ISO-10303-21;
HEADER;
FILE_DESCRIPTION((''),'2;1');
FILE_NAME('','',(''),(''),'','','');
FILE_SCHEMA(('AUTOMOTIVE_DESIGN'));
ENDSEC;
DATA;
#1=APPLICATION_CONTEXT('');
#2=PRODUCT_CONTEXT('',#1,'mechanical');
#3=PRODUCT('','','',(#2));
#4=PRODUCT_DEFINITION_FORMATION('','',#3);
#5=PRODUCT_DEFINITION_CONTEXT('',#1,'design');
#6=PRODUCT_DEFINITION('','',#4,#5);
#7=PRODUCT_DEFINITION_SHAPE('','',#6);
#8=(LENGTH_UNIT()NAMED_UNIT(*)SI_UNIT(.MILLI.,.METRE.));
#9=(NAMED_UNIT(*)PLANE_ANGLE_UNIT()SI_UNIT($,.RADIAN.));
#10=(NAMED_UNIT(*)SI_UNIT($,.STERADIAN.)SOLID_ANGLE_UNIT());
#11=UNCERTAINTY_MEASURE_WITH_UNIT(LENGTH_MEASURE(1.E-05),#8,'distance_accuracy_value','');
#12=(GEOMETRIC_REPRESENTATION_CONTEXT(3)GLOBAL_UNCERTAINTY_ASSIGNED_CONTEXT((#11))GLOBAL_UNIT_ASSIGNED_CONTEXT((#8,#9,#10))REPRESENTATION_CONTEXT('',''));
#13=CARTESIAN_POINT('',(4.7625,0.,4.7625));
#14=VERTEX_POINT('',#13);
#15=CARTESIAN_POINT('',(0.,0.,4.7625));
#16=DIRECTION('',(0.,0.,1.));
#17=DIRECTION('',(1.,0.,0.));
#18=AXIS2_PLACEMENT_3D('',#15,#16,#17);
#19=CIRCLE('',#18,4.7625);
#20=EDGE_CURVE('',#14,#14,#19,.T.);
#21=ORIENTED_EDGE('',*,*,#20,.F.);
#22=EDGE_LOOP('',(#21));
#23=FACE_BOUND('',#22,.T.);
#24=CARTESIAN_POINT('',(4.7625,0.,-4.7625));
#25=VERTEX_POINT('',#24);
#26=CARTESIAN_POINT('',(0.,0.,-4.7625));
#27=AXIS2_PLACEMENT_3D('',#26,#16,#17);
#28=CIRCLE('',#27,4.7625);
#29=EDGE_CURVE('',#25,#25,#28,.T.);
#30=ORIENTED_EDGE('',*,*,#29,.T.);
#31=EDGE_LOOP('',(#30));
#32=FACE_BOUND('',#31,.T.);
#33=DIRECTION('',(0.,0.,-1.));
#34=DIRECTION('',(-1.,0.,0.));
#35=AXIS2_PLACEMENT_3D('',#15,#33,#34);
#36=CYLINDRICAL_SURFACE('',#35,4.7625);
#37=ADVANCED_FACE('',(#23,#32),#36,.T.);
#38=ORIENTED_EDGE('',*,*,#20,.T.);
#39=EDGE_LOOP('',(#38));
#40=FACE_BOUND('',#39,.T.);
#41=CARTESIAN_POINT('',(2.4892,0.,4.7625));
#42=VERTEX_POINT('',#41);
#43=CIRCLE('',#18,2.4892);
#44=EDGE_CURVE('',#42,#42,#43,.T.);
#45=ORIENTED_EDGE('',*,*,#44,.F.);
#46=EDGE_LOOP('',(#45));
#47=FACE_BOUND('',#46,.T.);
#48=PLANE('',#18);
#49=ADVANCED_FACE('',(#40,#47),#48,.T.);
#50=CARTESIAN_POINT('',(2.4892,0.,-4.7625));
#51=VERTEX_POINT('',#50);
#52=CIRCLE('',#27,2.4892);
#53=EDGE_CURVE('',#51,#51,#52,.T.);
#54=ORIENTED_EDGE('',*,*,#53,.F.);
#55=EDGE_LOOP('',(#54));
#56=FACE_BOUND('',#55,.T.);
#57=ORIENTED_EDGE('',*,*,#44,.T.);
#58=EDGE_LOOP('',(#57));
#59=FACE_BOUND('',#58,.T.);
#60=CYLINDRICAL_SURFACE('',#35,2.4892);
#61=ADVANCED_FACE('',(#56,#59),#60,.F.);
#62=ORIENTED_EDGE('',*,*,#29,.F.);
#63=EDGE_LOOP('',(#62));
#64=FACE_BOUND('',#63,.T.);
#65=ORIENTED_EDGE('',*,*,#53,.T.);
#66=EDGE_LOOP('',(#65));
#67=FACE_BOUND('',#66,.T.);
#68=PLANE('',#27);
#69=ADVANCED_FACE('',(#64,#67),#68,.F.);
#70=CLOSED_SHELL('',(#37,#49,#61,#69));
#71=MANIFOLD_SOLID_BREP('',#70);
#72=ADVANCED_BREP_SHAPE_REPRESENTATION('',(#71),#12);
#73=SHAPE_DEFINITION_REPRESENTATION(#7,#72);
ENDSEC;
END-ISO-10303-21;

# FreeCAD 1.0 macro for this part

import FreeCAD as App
import Part
import Sketcher
Q = App.Units.Quantity

doc = App.newDocument("Part")
body = doc.addObject("PartDesign::Body", "Body")

# Sketch on XY plane
sketch1 = body.newObject("Sketcher::SketchObject", "Sketch")
sketch1.AttachmentSupport = (doc.getObject("XY_Plane"), [""])
sketch1.MapMode = "FlatFace"
sketch1.addGeometry(Part.Circle(App.Vector(0, 0, 0), App.Vector(0, 0, 1), 4.8), False)
sketch1.addGeometry(Part.Circle(App.Vector(0, 0, 0), App.Vector(0, 0, 1), 2.5), False)
sketch1.addConstraint(Sketcher.Constraint("Coincident", 0, 3, -1, 1))
sketch1.addConstraint(Sketcher.Constraint("Coincident", 1, 3, -1, 1))
sketch1.addConstraint(Sketcher.Constraint("Diameter", 0, Q("0.375 in")))
sketch1.addConstraint(Sketcher.Constraint("Diameter", 1, Q("0.196 in")))
pad1 = body.newObject("PartDesign::Pad", "Pad")
pad1.Profile = sketch1
pad1.Length = Q("0.375 in")
pad1.Midplane = True

doc.recompute()
